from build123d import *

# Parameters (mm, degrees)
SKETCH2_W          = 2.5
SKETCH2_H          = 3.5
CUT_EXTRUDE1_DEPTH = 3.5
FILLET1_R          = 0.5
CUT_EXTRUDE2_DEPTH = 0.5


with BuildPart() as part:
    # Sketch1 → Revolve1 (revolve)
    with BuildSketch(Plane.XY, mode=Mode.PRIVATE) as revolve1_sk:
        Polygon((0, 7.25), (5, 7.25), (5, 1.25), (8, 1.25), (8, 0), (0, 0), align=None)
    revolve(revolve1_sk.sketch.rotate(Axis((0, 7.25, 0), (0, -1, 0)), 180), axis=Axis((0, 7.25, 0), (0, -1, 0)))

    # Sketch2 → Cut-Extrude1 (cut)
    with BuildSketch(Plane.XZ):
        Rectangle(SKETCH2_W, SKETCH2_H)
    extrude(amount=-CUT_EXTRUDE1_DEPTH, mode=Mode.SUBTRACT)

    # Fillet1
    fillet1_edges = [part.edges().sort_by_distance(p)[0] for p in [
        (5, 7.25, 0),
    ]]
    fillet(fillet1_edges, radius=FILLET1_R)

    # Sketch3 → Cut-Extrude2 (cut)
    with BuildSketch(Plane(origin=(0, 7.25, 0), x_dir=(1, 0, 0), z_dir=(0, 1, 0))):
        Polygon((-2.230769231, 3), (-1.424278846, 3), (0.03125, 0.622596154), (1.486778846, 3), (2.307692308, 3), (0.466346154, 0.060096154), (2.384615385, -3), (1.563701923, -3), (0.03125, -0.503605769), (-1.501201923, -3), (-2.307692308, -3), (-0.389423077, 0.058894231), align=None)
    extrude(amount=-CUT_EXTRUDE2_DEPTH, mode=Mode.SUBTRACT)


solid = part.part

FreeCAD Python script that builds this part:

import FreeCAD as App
import Part
import Sketcher
from FreeCAD import Vector


def edges_at(feature, points):
    """Names of the edges that pass closest to the given points."""
    edges = feature.Shape.Edges
    near = lambda p: min(range(len(edges)), key=lambda i: edges[i].distToShape(Part.Vertex(*p))[0])
    return sorted({f"Edge{near(p) + 1}" for p in points})

doc = App.newDocument("Part")
body = doc.addObject("PartDesign::Body", "Body")

sketch1 = doc.addObject("Sketcher::SketchObject", "Sketch")
body.addObject(sketch1)
sketch1.AttachmentSupport = (doc.XY_Plane, [""])
sketch1.MapMode = "FlatFace"
sketch1.addGeometry([
    Part.LineSegment(Vector(5, 7.2, 0), Vector(0, 7.2, 0)),
    Part.LineSegment(Vector(0, 7.2, 0), Vector(0, 0, 0)),
    Part.LineSegment(Vector(0, 0, 0), Vector(8, 0, 0)),
    Part.LineSegment(Vector(8, 0, 0), Vector(8, 1.2, 0)),
    Part.LineSegment(Vector(8, 1.2, 0), Vector(5, 1.2, 0)),
    Part.LineSegment(Vector(5, 1.2, 0), Vector(5, 7.2, 0)),
], False)
sketch1.addConstraint([
    Sketcher.Constraint("Coincident", 0, 2, 1, 1),
    Sketcher.Constraint("Coincident", 1, 2, 2, 1),
    Sketcher.Constraint("Coincident", 2, 2, 3, 1),
    Sketcher.Constraint("Coincident", 3, 2, 4, 1),
    Sketcher.Constraint("Coincident", 4, 2, 5, 1),
    Sketcher.Constraint("Coincident", 5, 2, 0, 1),
    Sketcher.Constraint("Horizontal", 0),
    Sketcher.Constraint("Vertical", 1),
    Sketcher.Constraint("Horizontal", 2),
    Sketcher.Constraint("Vertical", 3),
    Sketcher.Constraint("Horizontal", 4),
    Sketcher.Constraint("Vertical", 5),
    Sketcher.Constraint("Coincident", 1, 2, -1, 1),
    Sketcher.Constraint("DistanceX", 0, 2, 0, 1, 5.0),
    Sketcher.Constraint("DistanceX", 2, 1, 2, 2, 8.0),
    Sketcher.Constraint("DistanceY", 5, 1, 5, 2, 6.0),
    Sketcher.Constraint("DistanceY", 1, 2, 1, 1, 7.25),
])
revolution = doc.addObject("PartDesign::Revolution", "Revolution")
body.addObject(revolution)
revolution.Profile = sketch1
revolution.ReferenceAxis = (sketch1, ["V_Axis"])
revolution.Angle = 360

sketch2 = doc.addObject("Sketcher::SketchObject", "Sketch001")
body.addObject(sketch2)
sketch2.AttachmentSupport = (doc.XZ_Plane, [""])
sketch2.MapMode = "FlatFace"
sketch2.addGeometry([
    Part.LineSegment(Vector(-1.2, 1.8, 0), Vector(-1.2, -1.8, 0)),
    Part.LineSegment(Vector(-1.2, -1.8, 0), Vector(1.2, -1.8, 0)),
    Part.LineSegment(Vector(1.2, -1.8, 0), Vector(1.2, 1.8, 0)),
    Part.LineSegment(Vector(1.2, 1.8, 0), Vector(-1.2, 1.8, 0)),
], False)
sketch2.addConstraint([
    Sketcher.Constraint("Coincident", 0, 2, 1, 1),
    Sketcher.Constraint("Coincident", 1, 2, 2, 1),
    Sketcher.Constraint("Coincident", 2, 2, 3, 1),
    Sketcher.Constraint("Coincident", 3, 2, 0, 1),
    Sketcher.Constraint("Vertical", 0),
    Sketcher.Constraint("Horizontal", 1),
    Sketcher.Constraint("Vertical", 2),
    Sketcher.Constraint("Horizontal", 3),
    Sketcher.Constraint("Symmetric", 0, 2, 2, 2, -1, 1),
    Sketcher.Constraint("DistanceX", 1, 1, 1, 2, 2.5),
    Sketcher.Constraint("DistanceY", 0, 2, 0, 1, 3.5),
])
pocket1 = doc.addObject("PartDesign::Pocket", "Pocket")
body.addObject(pocket1)
pocket1.Profile = sketch2
pocket1.Length = 3.5
doc.recompute()

fillet = doc.addObject("PartDesign::Fillet", "Fillet")
body.addObject(fillet)
fillet.Base = (pocket1, edges_at(pocket1, [(5, 7.25, 0)]))
fillet.Radius = 0.5

sketch3 = doc.addObject("Sketcher::SketchObject", "Sketch002")
body.addObject(sketch3)
sketch3.AttachmentSupport = (doc.XZ_Plane, [""])
sketch3.MapMode = "FlatFace"
sketch3.AttachmentOffset = App.Placement(Vector(0, 0, -7.25), App.Rotation())
sketch3.addGeometry([
    Part.LineSegment(Vector(-1.4, -3, 0), Vector(-2.2, -3, 0)),
    Part.LineSegment(Vector(-2.2, -3, 0), Vector(-0.4, -0.1, 0)),
    Part.LineSegment(Vector(-0.4, -0.1, 0), Vector(-2.3, 3, 0)),
    Part.LineSegment(Vector(-2.3, 3, 0), Vector(-1.5, 3, 0)),
    Part.LineSegment(Vector(-1.5, 3, 0), Vector(0, 0.5, 0)),
    Part.LineSegment(Vector(0, 0.5, 0), Vector(1.6, 3, 0)),
    Part.LineSegment(Vector(1.6, 3, 0), Vector(2.4, 3, 0)),
    Part.LineSegment(Vector(2.4, 3, 0), Vector(0.5, -0.1, 0)),
    Part.LineSegment(Vector(0.5, -0.1, 0), Vector(2.3, -3, 0)),
    Part.LineSegment(Vector(2.3, -3, 0), Vector(1.5, -3, 0)),
    Part.LineSegment(Vector(1.5, -3, 0), Vector(0, -0.6, 0)),
    Part.LineSegment(Vector(0, -0.6, 0), Vector(-1.4, -3, 0)),
], False)
sketch3.addConstraint([
    Sketcher.Constraint("Coincident", 0, 2, 1, 1),
    Sketcher.Constraint("Coincident", 1, 2, 2, 1),
    Sketcher.Constraint("Coincident", 2, 2, 3, 1),
    Sketcher.Constraint("Coincident", 3, 2, 4, 1),
    Sketcher.Constraint("Coincident", 4, 2, 5, 1),
    Sketcher.Constraint("Coincident", 5, 2, 6, 1),
    Sketcher.Constraint("Coincident", 6, 2, 7, 1),
    Sketcher.Constraint("Coincident", 7, 2, 8, 1),
    Sketcher.Constraint("Coincident", 8, 2, 9, 1),
    Sketcher.Constraint("Coincident", 9, 2, 10, 1),
    Sketcher.Constraint("Coincident", 10, 2, 11, 1),
    Sketcher.Constraint("Coincident", 11, 2, 0, 1),
    Sketcher.Constraint("Horizontal", 0),
    Sketcher.Constraint("Horizontal", 3),
    Sketcher.Constraint("Horizontal", 6),
    Sketcher.Constraint("Horizontal", 9),
    Sketcher.Constraint("Symmetric", 2, 2, 8, 2, -1, 1),
    Sketcher.Constraint("Horizontal", 3, 2, 5, 2),
    Sketcher.Constraint("Horizontal", 0, 2, 8, 2),
    Sketcher.Constraint("Vertical", 4, 2, 10, 2),
    Sketcher.Constraint("Equal", 0, 3),
    Sketcher.Constraint("Equal", 6, 9),
    Sketcher.Constraint("Equal", 4, 5),
    Sketcher.Constraint("Equal", 10, 11),
    Sketcher.Constraint("DistanceY", 0, 2, -1, 1, 3.0),
    Sketcher.Constraint("DistanceX", 0, 2, 0, 1, 0.80649),
    Sketcher.Constraint("DistanceX", 3, 2, -1, 1, 1.501202),
    Sketcher.Constraint("DistanceX", -1, 1, 5, 2, 1.563702),
    Sketcher.Constraint("DistanceY", 1, 2, 4, 2, 0.5625),
    Sketcher.Constraint("DistanceY", 7, 2, 4, 2, 0.563702),
    Sketcher.Constraint("DistanceX", 1, 2, 9, 2, 1.876202),
    Sketcher.Constraint("DistanceY", 10, 2, 1, 2, 0.563702),
    Sketcher.Constraint("Distance", 2, 3.610622),
    Sketcher.Constraint("Distance", 4, 2.929231),
    Sketcher.Constraint("Distance", 7, 3.61164),
])
pocket2 = doc.addObject("PartDesign::Pocket", "Pocket001")
body.addObject(pocket2)
pocket2.Profile = sketch3
pocket2.Length = 0.5
pocket2.Reversed = True

doc.recompute()
